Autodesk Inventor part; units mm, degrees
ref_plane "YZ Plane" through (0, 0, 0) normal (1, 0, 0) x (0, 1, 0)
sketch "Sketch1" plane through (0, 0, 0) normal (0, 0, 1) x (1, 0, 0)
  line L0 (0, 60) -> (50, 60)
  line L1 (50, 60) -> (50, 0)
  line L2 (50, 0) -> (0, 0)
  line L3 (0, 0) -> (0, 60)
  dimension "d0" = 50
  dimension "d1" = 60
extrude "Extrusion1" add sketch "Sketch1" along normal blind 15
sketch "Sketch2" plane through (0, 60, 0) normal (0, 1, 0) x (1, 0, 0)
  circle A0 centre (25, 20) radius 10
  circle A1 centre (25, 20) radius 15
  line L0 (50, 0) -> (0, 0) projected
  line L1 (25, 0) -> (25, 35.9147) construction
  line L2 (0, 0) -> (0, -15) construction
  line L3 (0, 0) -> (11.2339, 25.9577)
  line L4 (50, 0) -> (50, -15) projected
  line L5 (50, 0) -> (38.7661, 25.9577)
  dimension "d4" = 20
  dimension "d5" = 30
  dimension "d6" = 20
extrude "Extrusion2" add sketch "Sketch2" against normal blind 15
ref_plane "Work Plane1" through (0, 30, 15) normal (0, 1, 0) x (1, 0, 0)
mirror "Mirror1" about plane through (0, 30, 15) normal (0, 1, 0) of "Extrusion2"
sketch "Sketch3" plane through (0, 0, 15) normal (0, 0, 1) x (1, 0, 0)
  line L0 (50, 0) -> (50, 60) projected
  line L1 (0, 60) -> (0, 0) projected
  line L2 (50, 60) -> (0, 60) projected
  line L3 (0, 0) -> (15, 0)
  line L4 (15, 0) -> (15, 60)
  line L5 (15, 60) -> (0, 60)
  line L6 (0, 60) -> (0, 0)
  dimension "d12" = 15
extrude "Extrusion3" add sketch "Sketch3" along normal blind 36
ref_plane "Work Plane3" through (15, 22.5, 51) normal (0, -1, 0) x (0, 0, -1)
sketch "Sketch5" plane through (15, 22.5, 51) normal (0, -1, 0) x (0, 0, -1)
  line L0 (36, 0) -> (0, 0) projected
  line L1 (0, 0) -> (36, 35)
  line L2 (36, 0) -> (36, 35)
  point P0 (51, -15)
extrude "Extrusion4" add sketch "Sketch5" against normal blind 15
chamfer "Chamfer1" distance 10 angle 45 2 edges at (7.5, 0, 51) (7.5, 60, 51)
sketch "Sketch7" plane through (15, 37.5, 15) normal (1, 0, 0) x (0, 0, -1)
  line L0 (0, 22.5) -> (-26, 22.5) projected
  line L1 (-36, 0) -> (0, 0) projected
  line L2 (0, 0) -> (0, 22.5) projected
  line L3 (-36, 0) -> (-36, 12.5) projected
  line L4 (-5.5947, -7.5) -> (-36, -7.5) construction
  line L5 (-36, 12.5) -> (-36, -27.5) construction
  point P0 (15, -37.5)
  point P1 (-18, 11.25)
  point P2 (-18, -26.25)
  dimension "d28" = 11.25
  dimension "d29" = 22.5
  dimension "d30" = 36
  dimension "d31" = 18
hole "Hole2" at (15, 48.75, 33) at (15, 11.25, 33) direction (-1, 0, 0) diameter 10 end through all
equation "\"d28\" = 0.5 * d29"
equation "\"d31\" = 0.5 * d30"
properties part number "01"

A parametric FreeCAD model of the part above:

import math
import FreeCAD as App
import Part
import Sketcher
from FreeCAD import Vector
Q = App.Units.Quantity


def edges_at(feature, points):
    """Names of the edges that pass closest to the given points."""
    edges = feature.Shape.Edges
    near = lambda p: min(range(len(edges)), key=lambda i: edges[i].distToShape(Part.Vertex(*p))[0])
    return sorted({f"Edge{near(p) + 1}" for p in points})

doc = App.newDocument("Part")
body = doc.addObject("PartDesign::Body", "Body")

# Sketch on XY plane
sketch1 = body.newObject("Sketcher::SketchObject", "Sketch")
sketch1.AttachmentSupport = (doc.getObject("XY_Plane"), [""])
sketch1.MapMode = "FlatFace"
sketch1.addGeometry([
    Part.LineSegment(Vector(50, 60, 0), Vector(0, 60, 0)),
    Part.LineSegment(Vector(0, 60, 0), Vector(0, 0, 0)),
    Part.LineSegment(Vector(0, 0, 0), Vector(50, 0, 0)),
    Part.LineSegment(Vector(50, 0, 0), Vector(50, 60, 0)),
], False)
sketch1.addConstraint([
    Sketcher.Constraint("Coincident", 0, 2, 1, 1),
    Sketcher.Constraint("Coincident", 1, 2, 2, 1),
    Sketcher.Constraint("Coincident", 2, 2, 3, 1),
    Sketcher.Constraint("Coincident", 3, 2, 0, 1),
    Sketcher.Constraint("Horizontal", 0),
    Sketcher.Constraint("Vertical", 1),
    Sketcher.Constraint("Horizontal", 2),
    Sketcher.Constraint("Vertical", 3),
    Sketcher.Constraint("Coincident", 1, 2, -1, 1),
    Sketcher.Constraint("DistanceX", 0, 2, 0, 1, Q("50 mm")),
    Sketcher.Constraint("DistanceY", 1, 2, 1, 1, Q("60 mm")),
])
pad1 = body.newObject("PartDesign::Pad", "Pad")
pad1.Profile = sketch1
pad1.Length = 15

# Sketch on XZ plane
sketch2 = body.newObject("Sketcher::SketchObject", "Sketch001")
sketch2.AttachmentSupport = (doc.getObject("XZ_Plane"), [""])
sketch2.MapMode = "FlatFace"
sketch2.AttachmentOffset = App.Placement(Vector(0, 0, -60), App.Rotation())
sketch2.addGeometry([
    Part.ArcOfCircle(Part.Circle(Vector(25, -20, 0), Vector(0, 0, 1), 15), math.radians(-157), math.radians(-23)),  # 0
    Part.LineSegment(Vector(11, -26, 0), Vector(0, 0, 0)),  # 1
    Part.LineSegment(Vector(0, 0, 0), Vector(50, 0, 0)),  # 2
    Part.LineSegment(Vector(50, 0, 0), Vector(39, -26, 0)),  # 3
    Part.Circle(Vector(25, -20, 0), Vector(0, 0, 1), 10),  # 4
], False)
sketch2.addConstraint([
    Sketcher.Constraint("Tangent", 0, 1, 1, 1),
    Sketcher.Constraint("Coincident", 1, 2, 2, 1),
    Sketcher.Constraint("Coincident", 2, 2, 3, 1),
    Sketcher.Constraint("Tangent", 3, 2, 0, 2),
    Sketcher.Constraint("Horizontal", 2),
    Sketcher.Constraint("Coincident", 1, 2, -1, 1),
    Sketcher.Constraint("Coincident", 4, 3, 0, 3),
    Sketcher.Constraint("Horizontal", 0, 1, 3, 2),
    Sketcher.Constraint("Diameter", 4, Q("20 mm")),
    Sketcher.Constraint("Radius", 0, Q("15 mm")),
    Sketcher.Constraint("DistanceY", 0, 3, -1, 1, Q("20 mm")),
    Sketcher.Constraint("DistanceX", 2, 1, 2, 2, Q("50 mm")),
])
pad2 = body.newObject("PartDesign::Pad", "Pad001")
pad2.Profile = sketch2
pad2.Length = 15
doc.recompute()

datumplane = body.newObject("PartDesign::Plane", "DatumPlane")
datumplane.AttachmentSupport = (doc.getObject("XZ_Plane"), [""])
datumplane.MapMode = "FlatFace"
datumplane.AttachmentOffset = App.Placement(Vector(0, 0, -30), App.Rotation())
mirrored = body.newObject("PartDesign::Mirrored", "Mirrored")
mirrored.Originals = [pad2]
mirrored.MirrorPlane = (datumplane, [""])
body.Tip = mirrored

# Sketch on XY plane
sketch3 = body.newObject("Sketcher::SketchObject", "Sketch002")
sketch3.AttachmentSupport = (doc.getObject("XY_Plane"), [""])
sketch3.MapMode = "FlatFace"
sketch3.AttachmentOffset = App.Placement(Vector(0, 0, 15), App.Rotation())
sketch3.addGeometry([
    Part.LineSegment(Vector(15, 60, 0), Vector(0, 60, 0)),
    Part.LineSegment(Vector(0, 60, 0), Vector(0, 0, 0)),
    Part.LineSegment(Vector(0, 0, 0), Vector(15, 0, 0)),
    Part.LineSegment(Vector(15, 0, 0), Vector(15, 60, 0)),
], False)
sketch3.addConstraint([
    Sketcher.Constraint("Coincident", 0, 2, 1, 1),
    Sketcher.Constraint("Coincident", 1, 2, 2, 1),
    Sketcher.Constraint("Coincident", 2, 2, 3, 1),
    Sketcher.Constraint("Coincident", 3, 2, 0, 1),
    Sketcher.Constraint("Horizontal", 0),
    Sketcher.Constraint("Vertical", 1),
    Sketcher.Constraint("Horizontal", 2),
    Sketcher.Constraint("Vertical", 3),
    Sketcher.Constraint("Coincident", 1, 2, -1, 1),
    Sketcher.Constraint("DistanceX", 0, 2, 0, 1, Q("15 mm")),
    Sketcher.Constraint("DistanceY", 1, 2, 1, 1, Q("60 mm")),
])
pad3 = body.newObject("PartDesign::Pad", "Pad002")
pad3.Profile = sketch3
pad3.Length = 36

# Sketch on XZ plane
sketch4 = body.newObject("Sketcher::SketchObject", "Sketch003")
sketch4.AttachmentSupport = (doc.getObject("XZ_Plane"), [""])
sketch4.MapMode = "FlatFace"
sketch4.AttachmentOffset = App.Placement(Vector(0, 0, -22.5), App.Rotation())
sketch4.addGeometry([
    Part.LineSegment(Vector(15, 51, 0), Vector(15, 15, 0)),
    Part.LineSegment(Vector(15, 15, 0), Vector(50, 15, 0)),
    Part.LineSegment(Vector(50, 15, 0), Vector(15, 51, 0)),
], False)
sketch4.addConstraint([
    Sketcher.Constraint("Coincident", 0, 2, 1, 1),
    Sketcher.Constraint("Coincident", 1, 2, 2, 1),
    Sketcher.Constraint("Coincident", 2, 2, 0, 1),
    Sketcher.Constraint("Vertical", 0),
    Sketcher.Constraint("Horizontal", 1),
    Sketcher.Constraint("DistanceX", 1, 1, 1, 2, Q("35 mm")),
    Sketcher.Constraint("DistanceY", 0, 2, 0, 1, Q("36 mm")),
    Sketcher.Constraint("DistanceX", -1, 1, 0, 2, Q("15 mm")),
    Sketcher.Constraint("DistanceY", -1, 1, 0, 2, Q("15 mm")),
])
pad4 = body.newObject("PartDesign::Pad", "Pad003")
pad4.Profile = sketch4
pad4.Length = 15
pad4.Reversed = True
doc.recompute()

chamfer = body.newObject("PartDesign::Chamfer", "Chamfer")
chamfer.Base = (pad4, edges_at(pad4, [(7.5, 0, 51), (7.5, 60, 51)]))
chamfer.Size = 10

# Sketch on YZ plane
sketch5 = body.newObject("Sketcher::SketchObject", "Sketch004")
sketch5.AttachmentSupport = (doc.getObject("YZ_Plane"), [""])
sketch5.MapMode = "FlatFace"
sketch5.AttachmentOffset = App.Placement(Vector(0, 0, 15), App.Rotation())
sketch5.addGeometry([
    Part.Circle(Vector(49, 33, 0), Vector(0, 0, 1), 5),
    Part.Circle(Vector(11, 33, 0), Vector(0, 0, 1), 5),
], False)
sketch5.addConstraint([
    Sketcher.Constraint("Equal", 0, 1),
    Sketcher.Constraint("Horizontal", 0, 3, 1, 3),
    Sketcher.Constraint("Diameter", 0, Q("10 mm")),
    Sketcher.Constraint("DistanceY", -1, 1, 0, 3, Q("33 mm")),
    Sketcher.Constraint("DistanceX", 1, 3, 0, 3, Q("37.5 mm")),
    Sketcher.Constraint("DistanceX", -1, 1, 0, 3, Q("48.75 mm")),
])
doc.recompute()
hole = body.newObject("PartDesign::Hole", "Hole")
hole.Profile = sketch5
hole.ThreadType = "None"
hole.Diameter = 10
hole.DepthType = "ThroughAll"

doc.recompute()
